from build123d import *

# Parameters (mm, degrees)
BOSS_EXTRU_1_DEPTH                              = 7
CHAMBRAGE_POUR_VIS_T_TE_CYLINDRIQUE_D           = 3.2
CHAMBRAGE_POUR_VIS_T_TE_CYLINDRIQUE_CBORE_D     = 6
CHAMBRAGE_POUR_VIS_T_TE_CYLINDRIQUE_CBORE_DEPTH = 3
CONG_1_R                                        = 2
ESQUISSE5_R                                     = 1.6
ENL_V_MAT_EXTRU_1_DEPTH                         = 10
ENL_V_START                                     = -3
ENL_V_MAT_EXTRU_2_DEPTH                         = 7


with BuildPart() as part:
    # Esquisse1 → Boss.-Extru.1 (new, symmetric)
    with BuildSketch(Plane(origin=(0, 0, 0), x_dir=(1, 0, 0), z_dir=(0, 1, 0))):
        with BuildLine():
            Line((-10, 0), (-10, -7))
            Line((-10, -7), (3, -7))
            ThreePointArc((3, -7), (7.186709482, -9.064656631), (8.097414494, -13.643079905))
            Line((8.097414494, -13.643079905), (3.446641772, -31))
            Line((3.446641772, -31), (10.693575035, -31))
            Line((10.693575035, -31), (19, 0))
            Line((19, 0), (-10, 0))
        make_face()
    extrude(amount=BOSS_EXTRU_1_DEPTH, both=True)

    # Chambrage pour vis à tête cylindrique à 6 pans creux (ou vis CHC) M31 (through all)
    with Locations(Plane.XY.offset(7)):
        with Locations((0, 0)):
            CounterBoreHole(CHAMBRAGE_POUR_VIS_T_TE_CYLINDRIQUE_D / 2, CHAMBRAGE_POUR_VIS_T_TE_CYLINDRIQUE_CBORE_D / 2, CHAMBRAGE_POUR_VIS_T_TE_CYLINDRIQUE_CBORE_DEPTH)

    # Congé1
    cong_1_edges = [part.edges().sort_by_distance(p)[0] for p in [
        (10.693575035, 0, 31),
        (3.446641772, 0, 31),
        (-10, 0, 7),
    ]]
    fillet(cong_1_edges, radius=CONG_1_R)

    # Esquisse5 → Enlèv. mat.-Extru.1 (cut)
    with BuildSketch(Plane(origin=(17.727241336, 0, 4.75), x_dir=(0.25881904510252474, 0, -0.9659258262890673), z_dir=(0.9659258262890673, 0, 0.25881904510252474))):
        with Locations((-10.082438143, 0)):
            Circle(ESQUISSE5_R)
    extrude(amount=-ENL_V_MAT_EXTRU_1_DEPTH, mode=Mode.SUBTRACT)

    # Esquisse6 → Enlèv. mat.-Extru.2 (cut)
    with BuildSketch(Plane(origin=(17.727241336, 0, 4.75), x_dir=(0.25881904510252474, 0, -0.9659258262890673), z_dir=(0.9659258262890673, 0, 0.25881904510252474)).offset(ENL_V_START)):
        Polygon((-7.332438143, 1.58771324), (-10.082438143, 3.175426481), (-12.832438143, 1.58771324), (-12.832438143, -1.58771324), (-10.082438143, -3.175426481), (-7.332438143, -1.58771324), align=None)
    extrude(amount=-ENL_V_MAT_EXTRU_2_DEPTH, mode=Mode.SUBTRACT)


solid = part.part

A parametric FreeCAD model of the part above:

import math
import FreeCAD as App
import Part
import Sketcher

V = App.Vector
Q = App.Units.Quantity


def edges_at(feature, points):
    """Names of the edges that pass closest to the given points."""
    edges = feature.Shape.Edges
    near = lambda p: min(range(len(edges)), key=lambda i: edges[i].distToShape(Part.Vertex(*p))[0])
    return sorted({f"Edge{near(p) + 1}" for p in points})


def add_polygon(sketch, points):
    """Adds a closed chain of lines whose ends are joined by coincident constraints."""
    first, n = sketch.GeometryCount, len(points)
    for a, b in zip(points, points[1:] + points[:1]):
        sketch.addGeometry(Part.LineSegment(App.Vector(*a, 0), App.Vector(*b, 0)), False)
    for i in range(n):
        sketch.addConstraint(Sketcher.Constraint("Coincident", first + i, 2, first + (i + 1) % n, 1))

doc = App.newDocument("Part")
params = doc.addObject("Spreadsheet::Sheet", "Params")
for row, (alias, value) in enumerate([
    ("sketch1_width", "13 mm"),
    ("sketch1_width2", "29 mm"),
    ("sketch1_height", "7 mm"),
    ("pad1_length", "14 mm"),
    ("sketch2_diameter", "3.2 mm"),
    ("hole_diameter", "3.2 mm"),
    ("hole_cbore_diameter", "6 mm"),
    ("hole_cbore_depth", "3 mm"),
    ("fillet_radius", "2 mm"),
    ("sketch3_diameter", "3.2 mm"),
    ("pocket1_length", "10 mm"),
    ("pocket2_length", "7 mm"),
], start=1):
    params.set(f"A{row}", alias)
    params.set(f"B{row}", "=" + value)
    params.setAlias(f"B{row}", alias)

body = doc.addObject("PartDesign::Body", "Body")

sketch1 = body.newObject("Sketcher::SketchObject", "Sketch")
sketch1.AttachmentSupport = (doc.getObject("XZ_Plane"), [""])
sketch1.MapMode = "FlatFace"
sketch1.addGeometry([
    Part.LineSegment(V(-10, 0, 0), V(-10, 7, 0)),
    Part.LineSegment(V(-10, 7, 0), V(3, 7, 0)),
    Part.ArcOfCircle(Part.Circle(V(3, 12.277232, 0), V(0, 0, 1), 5.277232), math.radians(-90), math.radians(15)),
    Part.LineSegment(V(8.097414, 13.64308, 0), V(3.446642, 31, 0)),
    Part.LineSegment(V(3.446642, 31, 0), V(10.693575, 31, 0)),
    Part.LineSegment(V(10.693575, 31, 0), V(19, 0, 0)),
    Part.LineSegment(V(19, 0, 0), V(-10, 0, 0)),
], False)
sketch1.addConstraint([
    Sketcher.Constraint("Coincident", 0, 2, 1, 1),
    Sketcher.Constraint("Tangent", 1, 2, 2, 1),
    Sketcher.Constraint("Tangent", 2, 2, 3, 1),
    Sketcher.Constraint("Coincident", 3, 2, 4, 1),
    Sketcher.Constraint("Coincident", 4, 2, 5, 1),
    Sketcher.Constraint("Coincident", 5, 2, 6, 1),
    Sketcher.Constraint("Coincident", 6, 2, 0, 1),
    Sketcher.Constraint("Vertical", 0),
    Sketcher.Constraint("Horizontal", 1),
    Sketcher.Constraint("Horizontal", 4),
    Sketcher.Constraint("Horizontal", 6),
    Sketcher.Constraint("PointOnObject", 5, 2, -1),
    Sketcher.Constraint("Parallel", 3, 5),
    Sketcher.Constraint("DistanceX", 1, 1, 1, 2, Q("13 mm")),
    Sketcher.Constraint("DistanceX", 6, 2, 6, 1, Q("29 mm")),
    Sketcher.Constraint("DistanceY", 0, 1, 0, 2, Q("7 mm")),
    Sketcher.Constraint("Angle", 3, Q("105 deg")),
    Sketcher.Constraint("DistanceX", -1, 1, 2, 3, Q("3 mm")),
    Sketcher.Constraint("DistanceY", -1, 1, 3, 2, Q("31 mm")),
    Sketcher.Constraint("Radius", 2, Q("5.277232 mm")),
])
sketch1.setExpression("Constraints[13]", "Params.sketch1_width")
sketch1.setExpression("Constraints[14]", "Params.sketch1_width2")
sketch1.setExpression("Constraints[15]", "Params.sketch1_height")
pad1 = body.newObject("PartDesign::Pad", "Pad")
pad1.Profile = sketch1
pad1.setExpression("Length", "Params.pad1_length")
pad1.Midplane = True

sketch2 = body.newObject("Sketcher::SketchObject", "Sketch001")
sketch2.AttachmentSupport = (doc.getObject("XY_Plane"), [""])
sketch2.MapMode = "FlatFace"
sketch2.AttachmentOffset = App.Placement(V(0, 0, 7), App.Rotation())
sketch2.addGeometry(Part.Circle(V(0, 0, 0), V(0, 0, 1), 1.6), False)
sketch2.addConstraint([
    Sketcher.Constraint("Coincident", 0, 3, -1, 1),
    Sketcher.Constraint("Diameter", 0, Q("3.2 mm")),
])
sketch2.setExpression("Constraints[1]", "Params.sketch2_diameter")
doc.recompute()
hole = body.newObject("PartDesign::Hole", "Hole")
hole.Profile = sketch2
hole.ThreadType = "None"
hole.setExpression("Diameter", "Params.hole_diameter")
hole.DepthType = "ThroughAll"
hole.HoleCutType = "Counterbore"
hole.setExpression("HoleCutDiameter", "Params.hole_cbore_diameter")
hole.setExpression("HoleCutDepth", "Params.hole_cbore_depth")
doc.recompute()

fillet = body.newObject("PartDesign::Fillet", "Fillet")
fillet.Base = (hole, edges_at(hole, [(10.694, 0, 31), (3.447, 0, 31), (-10, 0, 7)]))
fillet.setExpression("Radius", "Params.fillet_radius")

sketch3 = body.newObject("Sketcher::SketchObject", "Sketch002")
sketch3.Placement = App.Placement(V(17.727241, 0, 4.75), App.Rotation(V(0.258819045, 0, -0.965925826), V(0, 0.999999999, 0), V(0.965925826, 0, 0.258819045), "ZXY"))
sketch3.addGeometry(Part.Circle(V(-10.082438, 0, 0), V(0, 0, 1), 1.6), False)
sketch3.addConstraint([
    Sketcher.Constraint("PointOnObject", 0, 3, -1),
    Sketcher.Constraint("Diameter", 0, Q("3.2 mm")),
    Sketcher.Constraint("DistanceX", 0, 3, -1, 1, Q("10.082438 mm")),
])
sketch3.setExpression("Constraints[1]", "Params.sketch3_diameter")
pocket1 = body.newObject("PartDesign::Pocket", "Pocket")
pocket1.Profile = sketch3
pocket1.setExpression("Length", "Params.pocket1_length")

sketch4 = body.newObject("Sketcher::SketchObject", "Sketch003")
sketch4.Placement = App.Placement(V(14.829464, 0, 3.973543), App.Rotation(V(0.258819045, 0, -0.965925826), V(0, 0.999999999, 0), V(0.965925826, 0, 0.258819045), "ZXY"))
add_polygon(sketch4, [(-7.332438, 1.587713), (-10.082438, 3.175426), (-12.832438, 1.587713), (-12.832438, -1.587713), (-10.082438, -3.175426), (-7.332438, -1.587713)])
sketch4.addConstraint([
    Sketcher.Constraint("Vertical", 2),
    Sketcher.Constraint("Vertical", 5),
    Sketcher.Constraint("Symmetric", 0, 2, 3, 2, -1),
    Sketcher.Constraint("Parallel", 0, 3),
    Sketcher.Constraint("Parallel", 1, 4),
    Sketcher.Constraint("Horizontal", 2, 2, 4, 2),
    Sketcher.Constraint("Horizontal", 1, 2, 5, 2),
    Sketcher.Constraint("Angle", 0, Q("150 deg")),
    Sketcher.Constraint("DistanceX", 2, 2, 4, 2, Q("5.5 mm")),
    Sketcher.Constraint("DistanceY", 2, 2, 2, 1, Q("3.175426 mm")),
    Sketcher.Constraint("DistanceX", 0, 2, -1, 1, Q("10.082438 mm")),
])
pocket2 = body.newObject("PartDesign::Pocket", "Pocket001")
pocket2.Profile = sketch4
pocket2.setExpression("Length", "Params.pocket2_length")

doc.recompute()
